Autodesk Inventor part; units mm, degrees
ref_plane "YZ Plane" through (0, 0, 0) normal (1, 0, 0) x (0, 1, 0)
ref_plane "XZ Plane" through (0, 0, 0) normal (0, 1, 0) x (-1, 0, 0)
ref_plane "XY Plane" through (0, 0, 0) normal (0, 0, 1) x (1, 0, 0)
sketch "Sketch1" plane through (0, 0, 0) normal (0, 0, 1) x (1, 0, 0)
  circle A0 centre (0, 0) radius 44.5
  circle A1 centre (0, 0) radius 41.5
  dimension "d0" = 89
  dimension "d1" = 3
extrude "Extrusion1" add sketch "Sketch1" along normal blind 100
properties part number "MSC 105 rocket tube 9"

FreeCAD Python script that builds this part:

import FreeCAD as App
import Part
import Sketcher
from FreeCAD import Vector

doc = App.newDocument("Part")
body = doc.addObject("PartDesign::Body", "Body")

sketch1 = body.newObject("Sketcher::SketchObject", "Sketch")
sketch1.AttachmentSupport = (doc.getObject("XY_Plane"), [""])
sketch1.MapMode = "FlatFace"
sketch1.addGeometry([
    Part.Circle(Vector(0, 0, 0), Vector(0, 0, 1), 44),
    Part.Circle(Vector(0, 0, 0), Vector(0, 0, 1), 42),
], False)
sketch1.addConstraint([
    Sketcher.Constraint("Coincident", 0, 3, -1, 1),
    Sketcher.Constraint("Coincident", 1, 3, -1, 1),
    Sketcher.Constraint("Diameter", 0, 89.0),
    Sketcher.Constraint("Diameter", 1, 83.0),
])
pad1 = body.newObject("PartDesign::Pad", "Pad")
pad1.Profile = sketch1
pad1.Length = 100

doc.recompute()
